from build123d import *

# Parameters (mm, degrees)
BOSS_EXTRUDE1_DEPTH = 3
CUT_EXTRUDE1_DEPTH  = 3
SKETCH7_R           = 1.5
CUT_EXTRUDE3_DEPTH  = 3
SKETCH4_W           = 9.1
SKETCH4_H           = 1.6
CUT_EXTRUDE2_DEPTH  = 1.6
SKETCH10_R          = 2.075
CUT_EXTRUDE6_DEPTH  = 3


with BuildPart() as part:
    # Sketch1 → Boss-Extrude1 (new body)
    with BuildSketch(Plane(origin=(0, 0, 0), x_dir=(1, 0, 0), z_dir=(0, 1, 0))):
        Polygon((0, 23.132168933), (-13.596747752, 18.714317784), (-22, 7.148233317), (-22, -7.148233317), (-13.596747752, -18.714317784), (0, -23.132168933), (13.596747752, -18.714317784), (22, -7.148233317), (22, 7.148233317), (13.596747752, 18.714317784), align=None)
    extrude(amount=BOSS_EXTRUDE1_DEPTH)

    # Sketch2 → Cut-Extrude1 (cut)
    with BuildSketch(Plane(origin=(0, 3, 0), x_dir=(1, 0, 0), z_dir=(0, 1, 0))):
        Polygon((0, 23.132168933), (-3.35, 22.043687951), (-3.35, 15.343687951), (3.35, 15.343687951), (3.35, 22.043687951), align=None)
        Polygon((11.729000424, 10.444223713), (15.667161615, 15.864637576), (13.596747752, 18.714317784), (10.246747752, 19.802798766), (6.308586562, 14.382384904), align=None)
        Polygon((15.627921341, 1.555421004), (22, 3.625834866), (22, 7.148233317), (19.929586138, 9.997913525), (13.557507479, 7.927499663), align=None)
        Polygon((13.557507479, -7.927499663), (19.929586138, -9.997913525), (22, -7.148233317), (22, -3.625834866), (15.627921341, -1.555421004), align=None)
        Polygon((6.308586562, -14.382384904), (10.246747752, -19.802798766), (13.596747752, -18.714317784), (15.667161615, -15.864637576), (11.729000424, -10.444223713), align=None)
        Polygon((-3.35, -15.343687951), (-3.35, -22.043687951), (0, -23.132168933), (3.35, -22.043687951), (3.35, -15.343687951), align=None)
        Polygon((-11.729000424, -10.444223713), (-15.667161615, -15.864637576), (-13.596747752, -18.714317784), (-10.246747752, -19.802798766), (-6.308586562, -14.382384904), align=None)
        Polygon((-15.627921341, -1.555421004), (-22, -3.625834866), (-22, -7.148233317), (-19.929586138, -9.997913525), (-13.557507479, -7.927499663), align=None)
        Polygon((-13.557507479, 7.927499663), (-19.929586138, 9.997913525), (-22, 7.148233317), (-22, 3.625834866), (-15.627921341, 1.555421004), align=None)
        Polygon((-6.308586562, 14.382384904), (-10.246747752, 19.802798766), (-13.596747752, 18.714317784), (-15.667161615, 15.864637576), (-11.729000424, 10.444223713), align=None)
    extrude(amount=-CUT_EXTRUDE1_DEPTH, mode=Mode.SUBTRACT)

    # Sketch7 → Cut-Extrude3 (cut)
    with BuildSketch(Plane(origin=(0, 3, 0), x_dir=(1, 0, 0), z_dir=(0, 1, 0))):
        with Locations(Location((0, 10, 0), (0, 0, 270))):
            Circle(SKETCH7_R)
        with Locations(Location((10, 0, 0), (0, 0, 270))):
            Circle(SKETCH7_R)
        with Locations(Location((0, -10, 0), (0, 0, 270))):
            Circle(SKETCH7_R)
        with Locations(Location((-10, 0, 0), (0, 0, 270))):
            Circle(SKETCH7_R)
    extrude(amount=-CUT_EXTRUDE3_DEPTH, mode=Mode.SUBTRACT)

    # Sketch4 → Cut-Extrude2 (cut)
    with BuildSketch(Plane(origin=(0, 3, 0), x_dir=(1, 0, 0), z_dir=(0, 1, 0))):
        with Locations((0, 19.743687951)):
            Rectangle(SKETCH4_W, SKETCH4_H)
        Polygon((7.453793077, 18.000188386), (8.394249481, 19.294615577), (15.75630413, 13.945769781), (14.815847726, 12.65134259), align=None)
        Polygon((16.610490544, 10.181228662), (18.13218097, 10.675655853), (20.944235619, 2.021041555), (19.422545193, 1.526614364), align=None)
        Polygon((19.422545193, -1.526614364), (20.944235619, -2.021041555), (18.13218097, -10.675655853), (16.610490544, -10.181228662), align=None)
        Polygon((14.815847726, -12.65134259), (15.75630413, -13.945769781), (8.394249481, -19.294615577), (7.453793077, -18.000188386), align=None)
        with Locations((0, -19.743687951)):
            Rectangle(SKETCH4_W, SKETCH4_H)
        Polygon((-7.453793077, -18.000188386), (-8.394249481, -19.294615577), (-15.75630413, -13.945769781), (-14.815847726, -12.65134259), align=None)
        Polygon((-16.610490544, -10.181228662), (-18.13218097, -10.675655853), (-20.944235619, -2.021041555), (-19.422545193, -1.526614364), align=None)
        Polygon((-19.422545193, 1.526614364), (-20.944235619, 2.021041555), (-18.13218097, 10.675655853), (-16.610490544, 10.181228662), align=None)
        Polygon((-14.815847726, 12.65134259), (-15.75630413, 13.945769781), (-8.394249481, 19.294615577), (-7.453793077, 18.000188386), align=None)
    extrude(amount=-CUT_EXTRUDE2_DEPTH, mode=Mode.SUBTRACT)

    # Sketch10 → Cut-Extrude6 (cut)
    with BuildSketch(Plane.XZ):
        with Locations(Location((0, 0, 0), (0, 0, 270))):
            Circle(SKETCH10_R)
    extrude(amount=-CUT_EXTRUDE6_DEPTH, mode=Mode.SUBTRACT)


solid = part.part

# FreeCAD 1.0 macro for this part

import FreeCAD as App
import Part
import Sketcher
Q = App.Units.Quantity


def add_polygon(sketch, points):
    """Adds a closed chain of lines whose ends are joined by coincident constraints."""
    first, n = sketch.GeometryCount, len(points)
    for a, b in zip(points, points[1:] + points[:1]):
        sketch.addGeometry(Part.LineSegment(App.Vector(*a, 0), App.Vector(*b, 0)), False)
    for i in range(n):
        sketch.addConstraint(Sketcher.Constraint("Coincident", first + i, 2, first + (i + 1) % n, 1))

doc = App.newDocument("Part")
params = doc.addObject("Spreadsheet::Sheet", "Params")
for row, (alias, value) in enumerate([
    ("pad1_length", "3 mm"),
    ("sketch2_width", "6.7 mm"),
    ("pocket1_length", "3 mm"),
    ("sketch3_diameter", "3 mm"),
    ("pocket2_length", "3 mm"),
    ("sketch4_width", "9.1 mm"),
    ("sketch4_height", "1.6 mm"),
    ("sketch4_length", "1.6 mm"),
    ("sketch4_length2", "9.1 mm"),
    ("pocket3_length", "1.6 mm"),
    ("sketch5_diameter", "4.15 mm"),
    ("pocket4_length", "3 mm"),
], start=1):
    params.set(f"A{row}", alias)
    params.set(f"B{row}", "=" + value)
    params.setAlias(f"B{row}", alias)

body = doc.addObject("PartDesign::Body", "Body")

# Sketch on XZ plane
sketch1 = body.newObject("Sketcher::SketchObject", "Sketch")
sketch1.AttachmentSupport = (doc.getObject("XZ_Plane"), [""])
sketch1.MapMode = "FlatFace"
add_polygon(sketch1, [(0, -23), (-14, -19), (-22, -7), (-22, 7), (-14, 19), (0, 23), (14, 19), (22, 7), (22, -7), (14, -19)])  # lines 0-9
sketch1.addConstraint(Sketcher.Constraint("Vertical", 2))
sketch1.addConstraint(Sketcher.Constraint("Vertical", 7))
sketch1.addConstraint(Sketcher.Constraint("Symmetric", 0, 2, 5, 2, -1, 1))
sketch1.addConstraint(Sketcher.Constraint("Symmetric", 1, 2, 6, 2, -1, 1))
sketch1.addConstraint(Sketcher.Constraint("Symmetric", 3, 2, 8, 2, -1, 1))
sketch1.addConstraint(Sketcher.Constraint("Symmetric", 4, 2, 9, 2, -1, 1))
sketch1.addConstraint(Sketcher.Constraint("Symmetric", 3, 2, 5, 2, -2))
sketch1.addConstraint(Sketcher.Constraint("PointOnObject", 4, 2, -2))
sketch1.addConstraint(Sketcher.Constraint("Parallel", 3, 8))
sketch1.addConstraint(Sketcher.Constraint("Horizontal", 2, 2, 6, 2))
sketch1.addConstraint(Sketcher.Constraint("Equal", 0, 1))
sketch1.addConstraint(Sketcher.Constraint("Angle", 0, Q("162 deg")))
sketch1.addConstraint(Sketcher.Constraint("Angle", 1, Q("126 deg")))
sketch1.addConstraint(Sketcher.Constraint("DistanceX", 1, 2, -1, 1, 22.0))
sketch1.addConstraint(Sketcher.Constraint("DistanceY", 2, 1, 2, 2, 14.296467))
pad1 = body.newObject("PartDesign::Pad", "Pad")
pad1.Profile = sketch1
pad1.setExpression("Length", "Params.pad1_length")
pad1.Reversed = True

# Sketch on XZ plane
sketch2 = body.newObject("Sketcher::SketchObject", "Sketch001")
sketch2.AttachmentSupport = (doc.getObject("XZ_Plane"), [""])
sketch2.MapMode = "FlatFace"
sketch2.AttachmentOffset = App.Placement(App.Vector(0, 0, -3), App.Rotation())
add_polygon(sketch2, [(0, -23.1), (-3.4, -22), (-3.4, -15.3), (3.4, -15.3), (3.4, -22)])  # lines 0-4
add_polygon(sketch2, [(11.7, -10.4), (15.7, -15.9), (13.6, -18.7), (10.2, -19.8), (6.3, -14.4)])  # lines 5-9
add_polygon(sketch2, [(15.6, -1.6), (22, -3.6), (22, -7.1), (19.9, -10), (13.6, -7.9)])  # lines 10-14
add_polygon(sketch2, [(13.6, 7.9), (19.9, 10), (22, 7.1), (22, 3.6), (15.6, 1.6)])  # lines 15-19
add_polygon(sketch2, [(6.3, 14.4), (10.2, 19.8), (13.6, 18.7), (15.7, 15.9), (11.7, 10.4)])  # lines 20-24
add_polygon(sketch2, [(-3.4, 15.3), (-3.4, 22), (0, 23.1), (3.4, 22), (3.4, 15.3)])  # lines 25-29
add_polygon(sketch2, [(-11.7, 10.4), (-15.7, 15.9), (-13.6, 18.7), (-10.2, 19.8), (-6.3, 14.4)])  # lines 30-34
add_polygon(sketch2, [(-15.6, 1.6), (-22, 3.6), (-22, 7.1), (-19.9, 10), (-13.6, 7.9)])  # lines 35-39
add_polygon(sketch2, [(-13.6, -7.9), (-19.9, -10), (-22, -7.1), (-22, -3.6), (-15.6, -1.6)])  # lines 40-44
add_polygon(sketch2, [(-6.3, -14.4), (-10.2, -19.8), (-13.6, -18.7), (-15.7, -15.9), (-11.7, -10.4)])  # lines 45-49
sketch2.addConstraint(Sketcher.Constraint("Vertical", 1))
sketch2.addConstraint(Sketcher.Constraint("Horizontal", 2))
sketch2.addConstraint(Sketcher.Constraint("Vertical", 3))
sketch2.addConstraint(Sketcher.Constraint("Vertical", 11))
sketch2.addConstraint(Sketcher.Constraint("Vertical", 17))
sketch2.addConstraint(Sketcher.Constraint("Vertical", 25))
sketch2.addConstraint(Sketcher.Constraint("Vertical", 28))
sketch2.addConstraint(Sketcher.Constraint("Horizontal", 29))
sketch2.addConstraint(Sketcher.Constraint("Vertical", 36))
sketch2.addConstraint(Sketcher.Constraint("Vertical", 42))
sketch2.addConstraint(Sketcher.Constraint("Symmetric", 3, 2, 25, 2, -1, 1))
sketch2.addConstraint(Sketcher.Constraint("Symmetric", 4, 2, 26, 2, -1, 1))
sketch2.addConstraint(Sketcher.Constraint("Symmetric", 0, 2, 27, 2, -1, 1))
sketch2.addConstraint(Sketcher.Constraint("Symmetric", 5, 2, 30, 2, -1, 1))
sketch2.addConstraint(Sketcher.Constraint("Symmetric", 6, 2, 31, 2, -1, 1))
sketch2.addConstraint(Sketcher.Constraint("Symmetric", 7, 2, 32, 2, -1, 1))
sketch2.addConstraint(Sketcher.Constraint("Symmetric", 8, 2, 33, 2, -1, 1))
sketch2.addConstraint(Sketcher.Constraint("Symmetric", 9, 2, 34, 2, -1, 1))
sketch2.addConstraint(Sketcher.Constraint("Symmetric", 10, 2, 35, 2, -1, 1))
sketch2.addConstraint(Sketcher.Constraint("Symmetric", 12, 2, 37, 2, -1, 1))
sketch2.addConstraint(Sketcher.Constraint("Symmetric", 13, 2, 38, 2, -1, 1))
sketch2.addConstraint(Sketcher.Constraint("Symmetric", 14, 2, 39, 2, -1, 1))
sketch2.addConstraint(Sketcher.Constraint("Symmetric", 15, 2, 40, 2, -1, 1))
sketch2.addConstraint(Sketcher.Constraint("Symmetric", 16, 2, 41, 2, -1, 1))
sketch2.addConstraint(Sketcher.Constraint("Symmetric", 18, 2, 43, 2, -1, 1))
sketch2.addConstraint(Sketcher.Constraint("Symmetric", 19, 2, 44, 2, -1, 1))
sketch2.addConstraint(Sketcher.Constraint("Symmetric", 20, 2, 45, 2, -1, 1))
sketch2.addConstraint(Sketcher.Constraint("Symmetric", 21, 2, 46, 2, -1, 1))
sketch2.addConstraint(Sketcher.Constraint("Symmetric", 22, 2, 47, 2, -1, 1))
sketch2.addConstraint(Sketcher.Constraint("Symmetric", 23, 2, 48, 2, -1, 1))
sketch2.addConstraint(Sketcher.Constraint("Symmetric", 24, 2, 49, 2, -1, 1))
sketch2.addConstraint(Sketcher.Constraint("Symmetric", 0, 2, 3, 2, -2))
sketch2.addConstraint(Sketcher.Constraint("Symmetric", 22, 2, 30, 2, -2))
sketch2.addConstraint(Sketcher.Constraint("Symmetric", 21, 2, 31, 2, -2))
sketch2.addConstraint(Sketcher.Constraint("Symmetric", 20, 2, 32, 2, -2))
sketch2.addConstraint(Sketcher.Constraint("Symmetric", 24, 2, 33, 2, -2))
sketch2.addConstraint(Sketcher.Constraint("Symmetric", 23, 2, 34, 2, -2))
sketch2.addConstraint(Sketcher.Constraint("Symmetric", 17, 2, 35, 2, -2))
sketch2.addConstraint(Sketcher.Constraint("Symmetric", 15, 2, 37, 2, -2))
sketch2.addConstraint(Sketcher.Constraint("Symmetric", 19, 2, 38, 2, -2))
sketch2.addConstraint(Sketcher.Constraint("Symmetric", 18, 2, 39, 2, -2))
sketch2.addConstraint(Sketcher.Constraint("PointOnObject", 4, 2, -2))
sketch2.addConstraint(Sketcher.Constraint("Parallel", 4, 7))
sketch2.addConstraint(Sketcher.Constraint("Parallel", 5, 8))
sketch2.addConstraint(Sketcher.Constraint("Perpendicular", 8, 9))
sketch2.addConstraint(Sketcher.Constraint("Parallel", 0, 10))
sketch2.addConstraint(Sketcher.Constraint("Parallel", 6, 12))
sketch2.addConstraint(Sketcher.Constraint("Parallel", 10, 13))
sketch2.addConstraint(Sketcher.Constraint("Perpendicular", 13, 14))
sketch2.addConstraint(Sketcher.Constraint("Perpendicular", 9, 16))
sketch2.addConstraint(Sketcher.Constraint("Parallel", 12, 20))
sketch2.addConstraint(Sketcher.Constraint("Parallel", 31, 37))
sketch2.addConstraint(Sketcher.Constraint("Parallel", 40, 43))
sketch2.addConstraint(Sketcher.Constraint("Equal", 29, 1))
sketch2.addConstraint(Sketcher.Constraint("Equal", 3, 25))
sketch2.addConstraint(Sketcher.Constraint("Equal", 4, 6))
sketch2.addConstraint(Sketcher.Constraint("Equal", 6, 7))
sketch2.addConstraint(Sketcher.Constraint("Equal", 5, 8))
sketch2.addConstraint(Sketcher.Constraint("Equal", 8, 9))
sketch2.addConstraint(Sketcher.Constraint("Equal", 9, 10))
sketch2.addConstraint(Sketcher.Constraint("Equal", 7, 12))
sketch2.addConstraint(Sketcher.Constraint("Equal", 10, 13))
sketch2.addConstraint(Sketcher.Constraint("Equal", 13, 14))
sketch2.addConstraint(Sketcher.Constraint("DistanceX", 2, 1, 2, 2, 6.7))
sketch2.addConstraint(Sketcher.Constraint("DistanceX", -1, 1, 10, 2, 22.0))
sketch2.addConstraint(Sketcher.Constraint("DistanceX", -1, 1, 9, 2, 11.729))
sketch2.addConstraint(Sketcher.Constraint("DistanceY", 7, 2, -1, 1, 19.802799))
sketch2.addConstraint(Sketcher.Constraint("DistanceY", 13, 2, -1, 1, 7.9275))
sketch2.addConstraint(Sketcher.Constraint("DistanceY", 4, 2, -1, 1, 23.132169))
sketch2.setExpression("Constraints[113]", "Params.sketch2_width")
pocket1 = body.newObject("PartDesign::Pocket", "Pocket")
pocket1.Profile = sketch2
pocket1.setExpression("Length", "Params.pocket1_length")
pocket1.Reversed = True

# Sketch on XZ plane
sketch3 = body.newObject("Sketcher::SketchObject", "Sketch002")
sketch3.AttachmentSupport = (doc.getObject("XZ_Plane"), [""])
sketch3.MapMode = "FlatFace"
sketch3.AttachmentOffset = App.Placement(App.Vector(0, 0, -3), App.Rotation())
sketch3.addGeometry(Part.Circle(App.Vector(0, -10, 0), App.Vector(0, 0, 1), 1.5), False)
sketch3.addGeometry(Part.Circle(App.Vector(10, 0, 0), App.Vector(0, 0, 1), 1.5), False)
sketch3.addGeometry(Part.Circle(App.Vector(0, 10, 0), App.Vector(0, 0, 1), 1.5), False)
sketch3.addGeometry(Part.Circle(App.Vector(-10, 0, 0), App.Vector(0, 0, 1), 1.5), False)
sketch3.addConstraint(Sketcher.Constraint("Equal", 0, 1))
sketch3.addConstraint(Sketcher.Constraint("Equal", 1, 2))
sketch3.addConstraint(Sketcher.Constraint("Equal", 2, 3))
sketch3.addConstraint(Sketcher.Constraint("Symmetric", 0, 3, 2, 3, -1, 1))
sketch3.addConstraint(Sketcher.Constraint("Symmetric", 1, 3, 3, 3, -1, 1))
sketch3.addConstraint(Sketcher.Constraint("PointOnObject", 0, 3, -2))
sketch3.addConstraint(Sketcher.Constraint("PointOnObject", 1, 3, -1))
sketch3.addConstraint(Sketcher.Constraint("Diameter", 0, 3.0))
sketch3.addConstraint(Sketcher.Constraint("DistanceY", 0, 3, -1, 1, 10.0))
sketch3.addConstraint(Sketcher.Constraint("DistanceX", -1, 1, 1, 3, 10.0))
sketch3.setExpression("Constraints[7]", "Params.sketch3_diameter")
pocket2 = body.newObject("PartDesign::Pocket", "Pocket001")
pocket2.Profile = sketch3
pocket2.setExpression("Length", "Params.pocket2_length")
pocket2.Reversed = True

# Sketch on XZ plane
sketch4 = body.newObject("Sketcher::SketchObject", "Sketch003")
sketch4.AttachmentSupport = (doc.getObject("XZ_Plane"), [""])
sketch4.MapMode = "FlatFace"
sketch4.AttachmentOffset = App.Placement(App.Vector(0, 0, -3), App.Rotation())
add_polygon(sketch4, [(-4.5, -20.5), (-4.5, -18.9), (4.5, -18.9), (4.5, -20.5)])  # lines 0-3
add_polygon(sketch4, [(8.4, -19.3), (7.5, -18), (14.8, -12.7), (15.8, -13.9)])  # lines 4-7
add_polygon(sketch4, [(18.1, -10.7), (16.6, -10.2), (19.4, -1.5), (20.9, -2)])  # lines 8-11
add_polygon(sketch4, [(20.9, 2), (19.4, 1.5), (16.6, 10.2), (18.1, 10.7)])  # lines 12-15
add_polygon(sketch4, [(15.8, 13.9), (14.8, 12.7), (7.5, 18), (8.4, 19.3)])  # lines 16-19
add_polygon(sketch4, [(-4.5, 18.9), (-4.5, 20.5), (4.5, 20.5), (4.5, 18.9)])  # lines 20-23
add_polygon(sketch4, [(-8.4, 19.3), (-7.5, 18), (-14.8, 12.7), (-15.8, 13.9)])  # lines 24-27
add_polygon(sketch4, [(-18.1, 10.7), (-16.6, 10.2), (-19.4, 1.5), (-20.9, 2)])  # lines 28-31
add_polygon(sketch4, [(-20.9, -2), (-19.4, -1.5), (-16.6, -10.2), (-18.1, -10.7)])  # lines 32-35
add_polygon(sketch4, [(-15.8, -13.9), (-14.8, -12.7), (-7.5, -18), (-8.4, -19.3)])  # lines 36-39
sketch4.addConstraint(Sketcher.Constraint("Vertical", 0))
sketch4.addConstraint(Sketcher.Constraint("Horizontal", 1))
sketch4.addConstraint(Sketcher.Constraint("Vertical", 2))
sketch4.addConstraint(Sketcher.Constraint("Horizontal", 3))
sketch4.addConstraint(Sketcher.Constraint("Vertical", 20))
sketch4.addConstraint(Sketcher.Constraint("Horizontal", 21))
sketch4.addConstraint(Sketcher.Constraint("Vertical", 22))
sketch4.addConstraint(Sketcher.Constraint("Horizontal", 23))
sketch4.addConstraint(Sketcher.Constraint("Symmetric", 2, 2, 20, 2, -1, 1))
sketch4.addConstraint(Sketcher.Constraint("Symmetric", 0, 2, 22, 2, -1, 1))
sketch4.addConstraint(Sketcher.Constraint("Symmetric", 4, 2, 24, 2, -1, 1))
sketch4.addConstraint(Sketcher.Constraint("Symmetric", 5, 2, 25, 2, -1, 1))
sketch4.addConstraint(Sketcher.Constraint("Symmetric", 6, 2, 26, 2, -1, 1))
sketch4.addConstraint(Sketcher.Constraint("Symmetric", 7, 2, 27, 2, -1, 1))
sketch4.addConstraint(Sketcher.Constraint("Symmetric", 8, 2, 28, 2, -1, 1))
sketch4.addConstraint(Sketcher.Constraint("Symmetric", 9, 2, 29, 2, -1, 1))
sketch4.addConstraint(Sketcher.Constraint("Symmetric", 10, 2, 30, 2, -1, 1))
sketch4.addConstraint(Sketcher.Constraint("Symmetric", 11, 2, 31, 2, -1, 1))
sketch4.addConstraint(Sketcher.Constraint("Symmetric", 12, 2, 32, 2, -1, 1))
sketch4.addConstraint(Sketcher.Constraint("Symmetric", 13, 2, 33, 2, -1, 1))
sketch4.addConstraint(Sketcher.Constraint("Symmetric", 14, 2, 34, 2, -1, 1))
sketch4.addConstraint(Sketcher.Constraint("Symmetric", 15, 2, 35, 2, -1, 1))
sketch4.addConstraint(Sketcher.Constraint("Symmetric", 16, 2, 36, 2, -1, 1))
sketch4.addConstraint(Sketcher.Constraint("Symmetric", 17, 2, 37, 2, -1, 1))
sketch4.addConstraint(Sketcher.Constraint("Symmetric", 18, 2, 38, 2, -1, 1))
sketch4.addConstraint(Sketcher.Constraint("Symmetric", 19, 2, 39, 2, -1, 1))
sketch4.addConstraint(Sketcher.Constraint("Symmetric", 17, 2, 24, 2, -2))
sketch4.addConstraint(Sketcher.Constraint("Symmetric", 16, 2, 25, 2, -2))
sketch4.addConstraint(Sketcher.Constraint("Symmetric", 19, 2, 26, 2, -2))
sketch4.addConstraint(Sketcher.Constraint("Symmetric", 18, 2, 27, 2, -2))
sketch4.addConstraint(Sketcher.Constraint("Symmetric", 13, 2, 28, 2, -2))
sketch4.addConstraint(Sketcher.Constraint("Symmetric", 12, 2, 29, 2, -2))
sketch4.addConstraint(Sketcher.Constraint("Symmetric", 15, 2, 30, 2, -2))
sketch4.addConstraint(Sketcher.Constraint("Symmetric", 14, 2, 31, 2, -2))
sketch4.addConstraint(Sketcher.Constraint("Perpendicular", 4, 5))
sketch4.addConstraint(Sketcher.Constraint("Perpendicular", 5, 6))
sketch4.addConstraint(Sketcher.Constraint("Perpendicular", 6, 7))
sketch4.addConstraint(Sketcher.Constraint("Perpendicular", 8, 9))
sketch4.addConstraint(Sketcher.Constraint("Perpendicular", 9, 10))
sketch4.addConstraint(Sketcher.Constraint("Perpendicular", 10, 11))
sketch4.addConstraint(Sketcher.Constraint("Vertical", 3, 2, 20, 2))
sketch4.addConstraint(Sketcher.Constraint("Equal", 6, 8))
sketch4.addConstraint(Sketcher.Constraint("Equal", 7, 9))
sketch4.addConstraint(Sketcher.Constraint("Angle", 4, Q("126 deg")))
sketch4.addConstraint(Sketcher.Constraint("Angle", 8, Q("162 deg")))
sketch4.addConstraint(Sketcher.Constraint("DistanceX", 1, 1, 1, 2, 9.1))
sketch4.addConstraint(Sketcher.Constraint("DistanceY", 0, 1, 0, 2, 1.6))
sketch4.addConstraint(Sketcher.Constraint("Distance", 4, 1.6))
sketch4.addConstraint(Sketcher.Constraint("Distance", 5, 9.1))
sketch4.addConstraint(Sketcher.Constraint("DistanceY", 7, 2, 9, 2, 17.768001))
sketch4.addConstraint(Sketcher.Constraint("DistanceY", 1, 2, 4, 2, 0.9435))
sketch4.addConstraint(Sketcher.Constraint("DistanceY", 4, 2, -1, 1, 18.000188))
sketch4.addConstraint(Sketcher.Constraint("DistanceX", -1, 1, 7, 2, 8.394249))
sketch4.addConstraint(Sketcher.Constraint("DistanceX", -1, 1, 8, 2, 16.610491))
sketch4.setExpression("Constraints[85]", "Params.sketch4_width")
sketch4.setExpression("Constraints[86]", "Params.sketch4_height")
sketch4.setExpression("Constraints[87]", "Params.sketch4_length")
sketch4.setExpression("Constraints[88]", "Params.sketch4_length2")
pocket3 = body.newObject("PartDesign::Pocket", "Pocket002")
pocket3.Profile = sketch4
pocket3.setExpression("Length", "Params.pocket3_length")
pocket3.Reversed = True

# Sketch on XZ plane
sketch5 = body.newObject("Sketcher::SketchObject", "Sketch004")
sketch5.AttachmentSupport = (doc.getObject("XZ_Plane"), [""])
sketch5.MapMode = "FlatFace"
sketch5.addGeometry(Part.Circle(App.Vector(0, 0, 0), App.Vector(0, 0, 1), 2.1), False)
sketch5.addConstraint(Sketcher.Constraint("Coincident", 0, 3, -1, 1))
sketch5.addConstraint(Sketcher.Constraint("Diameter", 0, 4.15))
sketch5.setExpression("Constraints[1]", "Params.sketch5_diameter")
pocket4 = body.newObject("PartDesign::Pocket", "Pocket003")
pocket4.Profile = sketch5
pocket4.setExpression("Length", "Params.pocket4_length")

doc.recompute()
